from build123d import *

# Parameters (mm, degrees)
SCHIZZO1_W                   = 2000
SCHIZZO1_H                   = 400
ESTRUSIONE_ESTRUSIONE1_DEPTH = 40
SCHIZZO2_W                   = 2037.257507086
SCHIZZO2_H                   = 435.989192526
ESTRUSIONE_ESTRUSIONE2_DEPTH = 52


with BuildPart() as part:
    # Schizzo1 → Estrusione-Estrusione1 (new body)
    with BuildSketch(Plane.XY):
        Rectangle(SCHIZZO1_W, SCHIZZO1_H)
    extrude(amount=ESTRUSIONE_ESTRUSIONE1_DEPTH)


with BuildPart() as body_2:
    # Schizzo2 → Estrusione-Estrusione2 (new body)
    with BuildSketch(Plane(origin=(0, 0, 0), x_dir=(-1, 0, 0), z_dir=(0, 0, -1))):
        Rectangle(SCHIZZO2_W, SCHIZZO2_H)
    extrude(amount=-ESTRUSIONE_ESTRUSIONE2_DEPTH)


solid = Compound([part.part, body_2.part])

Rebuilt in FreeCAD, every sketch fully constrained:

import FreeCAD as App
import Part
import Sketcher
from FreeCAD import Vector
Q = App.Units.Quantity


def add_polygon(sketch, points):
    """Adds a closed chain of lines whose ends are joined by coincident constraints."""
    first, n = sketch.GeometryCount, len(points)
    for a, b in zip(points, points[1:] + points[:1]):
        sketch.addGeometry(Part.LineSegment(App.Vector(*a, 0), App.Vector(*b, 0)), False)
    for i in range(n):
        sketch.addConstraint(Sketcher.Constraint("Coincident", first + i, 2, first + (i + 1) % n, 1))

doc = App.newDocument("Part")
params = doc.addObject("Spreadsheet::Sheet", "Params")
for row, (alias, value) in enumerate([
    ("sketch1_width", "2000 mm"),
    ("sketch1_height", "400 mm"),
    ("pad1_length", "40 mm"),
    ("pad2_length", "52 mm"),
], start=1):
    params.set(f"A{row}", alias)
    params.set(f"B{row}", "=" + value)
    params.setAlias(f"B{row}", alias)

body = doc.addObject("PartDesign::Body", "Body")

sketch1 = doc.addObject("Sketcher::SketchObject", "Sketch")
body.addObject(sketch1)
sketch1.AttachmentSupport = (doc.XY_Plane, [""])
sketch1.MapMode = "FlatFace"
add_polygon(sketch1, [(-1000, 200), (-1000, -200), (1000, -200), (1000, 200)])
sketch1.addConstraint([
    Sketcher.Constraint("Vertical", 0),
    Sketcher.Constraint("Horizontal", 1),
    Sketcher.Constraint("Vertical", 2),
    Sketcher.Constraint("Horizontal", 3),
    Sketcher.Constraint("Symmetric", 0, 2, 2, 2, -1, 1),
    Sketcher.Constraint("DistanceX", 1, 1, 1, 2, Q("2000 mm")),
    Sketcher.Constraint("DistanceY", 0, 2, 0, 1, Q("400 mm")),
])
sketch1.setExpression("Constraints[9]", "Params.sketch1_width")
sketch1.setExpression("Constraints[10]", "Params.sketch1_height")
pad1 = doc.addObject("PartDesign::Pad", "Pad")
body.addObject(pad1)
pad1.Profile = sketch1
pad1.setExpression("Length", "Params.pad1_length")
body2 = doc.addObject("PartDesign::Body", "Body001")

sketch2 = doc.addObject("Sketcher::SketchObject", "Sketch001")
body2.addObject(sketch2)
sketch2.AttachmentSupport = (doc.getObject("XY_Plane001"), [""])
sketch2.MapMode = "FlatFace"
add_polygon(sketch2, [(1019, 218), (1019, -218), (-1019, -218), (-1019, 218)])
sketch2.addConstraint([
    Sketcher.Constraint("Vertical", 0),
    Sketcher.Constraint("Horizontal", 1),
    Sketcher.Constraint("Vertical", 2),
    Sketcher.Constraint("Horizontal", 3),
    Sketcher.Constraint("Symmetric", 0, 2, 2, 2, -1, 1),
    Sketcher.Constraint("DistanceX", 1, 2, 1, 1, Q("2037.257507 mm")),
    Sketcher.Constraint("DistanceY", 0, 2, 0, 1, Q("435.989193 mm")),
])
pad2 = doc.addObject("PartDesign::Pad", "Pad001")
body2.addObject(pad2)
pad2.Profile = sketch2
pad2.setExpression("Length", "Params.pad2_length")

doc.recompute()
